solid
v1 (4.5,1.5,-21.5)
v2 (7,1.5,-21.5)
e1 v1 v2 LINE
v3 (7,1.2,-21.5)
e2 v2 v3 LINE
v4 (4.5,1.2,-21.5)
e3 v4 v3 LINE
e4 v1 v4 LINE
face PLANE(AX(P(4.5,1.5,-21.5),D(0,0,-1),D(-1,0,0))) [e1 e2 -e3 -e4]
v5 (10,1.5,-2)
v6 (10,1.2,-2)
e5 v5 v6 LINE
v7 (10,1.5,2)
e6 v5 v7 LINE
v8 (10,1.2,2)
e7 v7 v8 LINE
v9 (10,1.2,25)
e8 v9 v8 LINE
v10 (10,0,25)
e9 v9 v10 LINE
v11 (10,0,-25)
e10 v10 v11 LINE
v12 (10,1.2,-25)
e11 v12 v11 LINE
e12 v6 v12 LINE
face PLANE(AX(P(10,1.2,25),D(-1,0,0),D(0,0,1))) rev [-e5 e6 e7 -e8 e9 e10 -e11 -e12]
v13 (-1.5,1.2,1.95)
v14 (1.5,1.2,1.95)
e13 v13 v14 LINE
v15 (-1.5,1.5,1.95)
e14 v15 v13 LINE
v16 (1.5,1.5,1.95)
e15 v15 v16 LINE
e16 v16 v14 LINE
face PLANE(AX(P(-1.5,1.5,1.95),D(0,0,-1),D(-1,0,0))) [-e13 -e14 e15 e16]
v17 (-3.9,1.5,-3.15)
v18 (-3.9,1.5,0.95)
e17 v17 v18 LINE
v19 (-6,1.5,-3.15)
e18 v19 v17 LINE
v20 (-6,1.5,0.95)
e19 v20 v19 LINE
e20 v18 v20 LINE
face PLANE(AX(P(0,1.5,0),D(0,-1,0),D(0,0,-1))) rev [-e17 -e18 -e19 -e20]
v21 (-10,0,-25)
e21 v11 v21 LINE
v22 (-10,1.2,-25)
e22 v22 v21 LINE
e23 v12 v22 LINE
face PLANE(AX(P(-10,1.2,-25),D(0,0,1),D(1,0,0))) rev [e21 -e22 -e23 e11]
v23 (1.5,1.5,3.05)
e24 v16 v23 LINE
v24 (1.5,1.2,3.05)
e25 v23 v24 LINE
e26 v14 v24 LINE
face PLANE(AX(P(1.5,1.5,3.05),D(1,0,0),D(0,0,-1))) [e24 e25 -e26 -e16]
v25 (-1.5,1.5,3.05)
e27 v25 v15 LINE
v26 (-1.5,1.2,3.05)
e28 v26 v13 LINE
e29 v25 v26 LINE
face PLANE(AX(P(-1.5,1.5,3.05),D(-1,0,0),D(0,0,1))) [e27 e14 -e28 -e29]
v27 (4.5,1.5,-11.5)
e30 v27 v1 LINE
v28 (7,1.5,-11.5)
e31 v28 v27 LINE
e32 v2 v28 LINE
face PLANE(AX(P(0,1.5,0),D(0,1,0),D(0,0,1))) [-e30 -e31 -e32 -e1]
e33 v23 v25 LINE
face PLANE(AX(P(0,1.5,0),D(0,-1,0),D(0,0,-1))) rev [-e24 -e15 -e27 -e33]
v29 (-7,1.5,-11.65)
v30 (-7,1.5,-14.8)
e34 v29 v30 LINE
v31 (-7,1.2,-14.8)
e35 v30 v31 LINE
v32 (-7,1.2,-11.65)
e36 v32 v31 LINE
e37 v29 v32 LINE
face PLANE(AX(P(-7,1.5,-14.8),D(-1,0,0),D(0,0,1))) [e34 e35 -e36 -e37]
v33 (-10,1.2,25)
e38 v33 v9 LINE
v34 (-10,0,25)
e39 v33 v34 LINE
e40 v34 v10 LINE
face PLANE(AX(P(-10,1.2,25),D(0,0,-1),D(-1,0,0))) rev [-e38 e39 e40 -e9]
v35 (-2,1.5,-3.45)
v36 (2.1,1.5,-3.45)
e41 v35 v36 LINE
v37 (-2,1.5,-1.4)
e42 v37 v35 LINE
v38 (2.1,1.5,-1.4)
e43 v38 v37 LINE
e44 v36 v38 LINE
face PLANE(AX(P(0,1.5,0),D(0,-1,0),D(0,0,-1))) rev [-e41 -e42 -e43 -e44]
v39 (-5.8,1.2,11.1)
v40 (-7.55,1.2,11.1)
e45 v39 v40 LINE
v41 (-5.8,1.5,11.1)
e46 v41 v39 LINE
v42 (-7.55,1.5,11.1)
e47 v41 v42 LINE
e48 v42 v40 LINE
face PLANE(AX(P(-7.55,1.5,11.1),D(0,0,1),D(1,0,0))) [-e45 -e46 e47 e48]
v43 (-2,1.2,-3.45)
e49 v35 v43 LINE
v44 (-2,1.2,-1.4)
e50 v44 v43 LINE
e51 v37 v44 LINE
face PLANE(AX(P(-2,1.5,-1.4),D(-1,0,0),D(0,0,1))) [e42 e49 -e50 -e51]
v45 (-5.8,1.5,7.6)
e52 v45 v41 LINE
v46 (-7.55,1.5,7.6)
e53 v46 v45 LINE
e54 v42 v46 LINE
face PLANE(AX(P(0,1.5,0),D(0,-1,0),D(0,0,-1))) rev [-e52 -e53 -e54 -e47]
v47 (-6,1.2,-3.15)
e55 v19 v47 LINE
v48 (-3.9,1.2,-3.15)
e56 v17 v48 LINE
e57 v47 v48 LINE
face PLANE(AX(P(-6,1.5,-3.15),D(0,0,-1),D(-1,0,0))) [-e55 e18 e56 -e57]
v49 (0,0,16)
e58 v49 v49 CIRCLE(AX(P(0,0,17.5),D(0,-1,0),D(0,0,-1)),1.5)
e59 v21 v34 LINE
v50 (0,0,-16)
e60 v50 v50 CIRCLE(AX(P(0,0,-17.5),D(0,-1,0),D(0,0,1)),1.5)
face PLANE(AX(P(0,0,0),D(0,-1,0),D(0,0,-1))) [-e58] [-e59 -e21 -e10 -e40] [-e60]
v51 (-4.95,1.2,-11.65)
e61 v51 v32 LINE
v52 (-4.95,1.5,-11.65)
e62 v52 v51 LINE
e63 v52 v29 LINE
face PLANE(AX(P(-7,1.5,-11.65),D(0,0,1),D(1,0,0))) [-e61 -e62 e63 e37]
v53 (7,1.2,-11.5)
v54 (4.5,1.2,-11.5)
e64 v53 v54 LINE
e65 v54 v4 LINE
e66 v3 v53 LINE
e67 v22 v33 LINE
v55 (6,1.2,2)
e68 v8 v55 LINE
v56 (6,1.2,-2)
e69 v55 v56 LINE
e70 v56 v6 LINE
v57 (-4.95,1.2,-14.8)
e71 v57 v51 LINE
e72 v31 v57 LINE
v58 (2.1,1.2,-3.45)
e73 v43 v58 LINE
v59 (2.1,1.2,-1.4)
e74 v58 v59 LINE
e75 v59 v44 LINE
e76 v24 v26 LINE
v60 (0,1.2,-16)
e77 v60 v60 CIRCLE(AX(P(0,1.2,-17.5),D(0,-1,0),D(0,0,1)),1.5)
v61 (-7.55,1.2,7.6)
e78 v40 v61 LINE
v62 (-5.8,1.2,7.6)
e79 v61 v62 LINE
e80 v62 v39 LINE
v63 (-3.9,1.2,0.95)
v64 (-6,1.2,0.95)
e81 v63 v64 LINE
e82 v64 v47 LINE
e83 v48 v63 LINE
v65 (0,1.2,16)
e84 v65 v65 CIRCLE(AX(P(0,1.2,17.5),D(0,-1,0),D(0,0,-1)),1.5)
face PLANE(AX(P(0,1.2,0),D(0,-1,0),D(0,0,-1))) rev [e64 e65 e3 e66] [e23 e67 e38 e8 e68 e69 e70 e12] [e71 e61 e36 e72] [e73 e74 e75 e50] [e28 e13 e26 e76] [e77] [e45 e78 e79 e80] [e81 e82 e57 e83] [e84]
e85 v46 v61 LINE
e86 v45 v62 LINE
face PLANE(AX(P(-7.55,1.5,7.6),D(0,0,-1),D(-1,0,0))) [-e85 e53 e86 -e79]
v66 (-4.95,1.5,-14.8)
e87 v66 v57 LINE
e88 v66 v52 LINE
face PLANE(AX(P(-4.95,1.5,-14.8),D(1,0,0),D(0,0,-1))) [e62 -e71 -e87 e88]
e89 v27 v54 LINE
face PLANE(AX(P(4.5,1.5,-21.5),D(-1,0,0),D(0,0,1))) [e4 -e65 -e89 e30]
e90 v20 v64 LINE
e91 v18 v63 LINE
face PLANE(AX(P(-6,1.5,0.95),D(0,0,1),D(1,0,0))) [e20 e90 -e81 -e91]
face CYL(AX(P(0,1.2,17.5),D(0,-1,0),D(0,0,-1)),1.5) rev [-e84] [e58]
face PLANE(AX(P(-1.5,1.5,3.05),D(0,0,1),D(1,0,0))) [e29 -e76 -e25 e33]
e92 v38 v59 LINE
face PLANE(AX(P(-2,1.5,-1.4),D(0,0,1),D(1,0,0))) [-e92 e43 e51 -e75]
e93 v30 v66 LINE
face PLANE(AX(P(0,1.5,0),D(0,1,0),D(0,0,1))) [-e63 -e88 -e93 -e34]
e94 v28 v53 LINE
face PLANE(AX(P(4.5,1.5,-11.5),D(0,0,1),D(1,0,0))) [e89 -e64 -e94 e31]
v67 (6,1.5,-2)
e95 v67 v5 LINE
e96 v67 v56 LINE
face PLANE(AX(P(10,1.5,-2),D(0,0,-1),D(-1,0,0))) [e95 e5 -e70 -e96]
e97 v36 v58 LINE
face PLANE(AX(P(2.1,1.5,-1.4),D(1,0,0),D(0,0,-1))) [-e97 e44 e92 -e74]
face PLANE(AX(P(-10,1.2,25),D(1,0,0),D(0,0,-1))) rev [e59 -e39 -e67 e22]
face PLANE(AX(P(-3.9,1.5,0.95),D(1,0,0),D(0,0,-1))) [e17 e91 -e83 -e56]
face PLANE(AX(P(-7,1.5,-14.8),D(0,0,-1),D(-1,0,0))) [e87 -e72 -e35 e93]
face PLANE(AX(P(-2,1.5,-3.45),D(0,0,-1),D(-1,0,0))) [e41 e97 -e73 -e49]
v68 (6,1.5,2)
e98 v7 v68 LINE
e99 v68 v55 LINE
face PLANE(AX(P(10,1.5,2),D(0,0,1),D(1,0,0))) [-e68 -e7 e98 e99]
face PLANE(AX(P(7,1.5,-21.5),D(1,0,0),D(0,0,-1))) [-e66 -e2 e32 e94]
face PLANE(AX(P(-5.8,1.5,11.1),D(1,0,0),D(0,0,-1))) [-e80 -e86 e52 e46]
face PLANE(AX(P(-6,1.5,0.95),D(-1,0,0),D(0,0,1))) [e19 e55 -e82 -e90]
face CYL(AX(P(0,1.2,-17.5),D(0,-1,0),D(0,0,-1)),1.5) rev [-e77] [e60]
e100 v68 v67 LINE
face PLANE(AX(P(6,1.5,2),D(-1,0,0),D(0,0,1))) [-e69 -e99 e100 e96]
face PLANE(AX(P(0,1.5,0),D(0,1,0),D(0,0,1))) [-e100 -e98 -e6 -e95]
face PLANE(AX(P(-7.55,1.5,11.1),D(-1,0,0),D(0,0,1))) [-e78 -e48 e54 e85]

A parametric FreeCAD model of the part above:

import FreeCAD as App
import Part
import Sketcher

V = App.Vector


def add_polygon(sketch, points):
    """Adds a closed chain of lines whose ends are joined by coincident constraints."""
    first, n = sketch.GeometryCount, len(points)
    for a, b in zip(points, points[1:] + points[:1]):
        sketch.addGeometry(Part.LineSegment(App.Vector(*a, 0), App.Vector(*b, 0)), False)
    for i in range(n):
        sketch.addConstraint(Sketcher.Constraint("Coincident", first + i, 2, first + (i + 1) % n, 1))

doc = App.newDocument("Part")
body = doc.addObject("PartDesign::Body", "Body")

sketch1 = body.newObject("Sketcher::SketchObject", "Sketch")
sketch1.AttachmentSupport = (doc.getObject("XZ_Plane"), [""])
sketch1.MapMode = "FlatFace"
add_polygon(sketch1, [(-10, -25), (-10, 25), (10, 25), (10, -25)])
sketch1.addConstraint([
    Sketcher.Constraint("Vertical", 0),
    Sketcher.Constraint("Horizontal", 1),
    Sketcher.Constraint("Vertical", 2),
    Sketcher.Constraint("Horizontal", 3),
    Sketcher.Constraint("Symmetric", 0, 2, 2, 2, -1, 1),
    Sketcher.Constraint("DistanceX", 1, 1, 1, 2, 20.0),
    Sketcher.Constraint("DistanceY", 0, 1, 0, 2, 50.0),
])
pad1 = body.newObject("PartDesign::Pad", "Pad")
pad1.Profile = sketch1
pad1.Length = 1.2
pad1.Reversed = True

sketch2 = body.newObject("Sketcher::SketchObject", "Sketch001")
sketch2.AttachmentSupport = (doc.getObject("XZ_Plane"), [""])
sketch2.MapMode = "FlatFace"
sketch2.addGeometry([
    Part.Circle(V(0, 17.5, 0), V(0, 0, 1), 1.5),
    Part.Circle(V(0, -17.5, 0), V(0, 0, 1), 1.5),
], False)
sketch2.addConstraint([
    Sketcher.Constraint("Equal", 0, 1),
    Sketcher.Constraint("Symmetric", 0, 3, 1, 3, -1, 1),
    Sketcher.Constraint("PointOnObject", 0, 3, -2),
    Sketcher.Constraint("Diameter", 0, 3.0),
    Sketcher.Constraint("DistanceY", 1, 3, 0, 3, 35.0),
])
pocket1 = body.newObject("PartDesign::Pocket", "Pocket")
pocket1.Profile = sketch2
pocket1.Type = "ThroughAll"

sketch3 = body.newObject("Sketcher::SketchObject", "Sketch002")
sketch3.AttachmentSupport = (doc.getObject("XZ_Plane"), [""])
sketch3.MapMode = "FlatFace"
add_polygon(sketch3, [(4.5, -11.5), (4.5, -21.5), (7, -21.5), (7, -11.5)])
add_polygon(sketch3, [(-7, -11.7), (-7, -14.8), (-5, -14.8), (-5, -11.7)])
add_polygon(sketch3, [(-6, 0.9), (-6, -3.1), (-3.9, -3.1), (-3.9, 0.9)])
add_polygon(sketch3, [(-2, -1.4), (-2, -3.5), (2.1, -3.5), (2.1, -1.4)])
add_polygon(sketch3, [(-1.5, 3), (-1.5, 1.9), (1.5, 1.9), (1.5, 3)])
add_polygon(sketch3, [(6, 2), (6, -2), (10, -2), (10, 2)])
add_polygon(sketch3, [(-7.5, 11.1), (-7.5, 7.6), (-5.8, 7.6), (-5.8, 11.1)])
sketch3.addConstraint([
    Sketcher.Constraint("Vertical", 0),
    Sketcher.Constraint("Horizontal", 1),
    Sketcher.Constraint("Vertical", 2),
    Sketcher.Constraint("Horizontal", 3),
    Sketcher.Constraint("Vertical", 4),
    Sketcher.Constraint("Horizontal", 5),
    Sketcher.Constraint("Vertical", 6),
    Sketcher.Constraint("Horizontal", 7),
    Sketcher.Constraint("Vertical", 8),
    Sketcher.Constraint("Horizontal", 9),
    Sketcher.Constraint("Vertical", 10),
    Sketcher.Constraint("Horizontal", 11),
    Sketcher.Constraint("Vertical", 12),
    Sketcher.Constraint("Horizontal", 13),
    Sketcher.Constraint("Vertical", 14),
    Sketcher.Constraint("Horizontal", 15),
    Sketcher.Constraint("Vertical", 16),
    Sketcher.Constraint("Horizontal", 17),
    Sketcher.Constraint("Vertical", 18),
    Sketcher.Constraint("Horizontal", 19),
    Sketcher.Constraint("Vertical", 20),
    Sketcher.Constraint("Horizontal", 21),
    Sketcher.Constraint("Vertical", 22),
    Sketcher.Constraint("Horizontal", 23),
    Sketcher.Constraint("Vertical", 24),
    Sketcher.Constraint("Horizontal", 25),
    Sketcher.Constraint("Vertical", 26),
    Sketcher.Constraint("Horizontal", 27),
    Sketcher.Constraint("Equal", 15, 8),
    Sketcher.Constraint("Equal", 7, 12),
    Sketcher.Constraint("Equal", 23, 20),
    Sketcher.Constraint("DistanceX", 17, 1, 17, 2, 3.0),
    Sketcher.Constraint("DistanceX", 21, 1, 21, 2, 4.0),
    Sketcher.Constraint("DistanceY", 0, 2, 0, 1, 10.0),
    Sketcher.Constraint("DistanceX", 1, 1, 1, 2, 2.5),
    Sketcher.Constraint("DistanceX", 9, 1, 9, 2, 2.1),
    Sketcher.Constraint("DistanceX", 13, 1, 13, 2, 4.1),
    Sketcher.Constraint("DistanceY", 16, 2, 16, 1, 1.1),
    Sketcher.Constraint("DistanceY", 24, 2, 24, 1, 3.5),
    Sketcher.Constraint("DistanceX", -1, 1, 1, 2, 7.0),
    Sketcher.Constraint("DistanceX", 4, 2, -1, 1, 7.0),
    Sketcher.Constraint("DistanceX", 8, 2, -1, 1, 6.0),
    Sketcher.Constraint("DistanceX", 12, 2, -1, 1, 2.0),
    Sketcher.Constraint("DistanceX", -1, 1, 20, 2, 6.0),
    Sketcher.Constraint("DistanceY", 20, 2, -1, 1, 2.0),
    Sketcher.Constraint("DistanceY", 10, 2, 16, 2, 1.0),
    Sketcher.Constraint("DistanceX", 5, 1, 5, 2, 2.05),
    Sketcher.Constraint("DistanceX", 25, 1, 25, 2, 1.75),
    Sketcher.Constraint("DistanceY", 4, 2, 4, 1, 3.15),
    Sketcher.Constraint("DistanceY", 0, 2, -1, 1, 21.5),
    Sketcher.Constraint("DistanceY", 4, 2, -1, 1, 14.8),
    Sketcher.Constraint("DistanceY", 14, 2, -1, 1, 1.4),
    Sketcher.Constraint("DistanceX", 16, 2, -1, 1, 1.5),
    Sketcher.Constraint("DistanceY", -1, 1, 24, 2, 7.6),
    Sketcher.Constraint("DistanceX", 25, 2, -1, 1, 5.8),
    Sketcher.Constraint("DistanceY", 7, 2, 8, 2, 8.5),
])
pad2 = body.newObject("PartDesign::Pad", "Pad001")
pad2.Profile = sketch3
pad2.Length = 1.5
pad2.Reversed = True

doc.recompute()
